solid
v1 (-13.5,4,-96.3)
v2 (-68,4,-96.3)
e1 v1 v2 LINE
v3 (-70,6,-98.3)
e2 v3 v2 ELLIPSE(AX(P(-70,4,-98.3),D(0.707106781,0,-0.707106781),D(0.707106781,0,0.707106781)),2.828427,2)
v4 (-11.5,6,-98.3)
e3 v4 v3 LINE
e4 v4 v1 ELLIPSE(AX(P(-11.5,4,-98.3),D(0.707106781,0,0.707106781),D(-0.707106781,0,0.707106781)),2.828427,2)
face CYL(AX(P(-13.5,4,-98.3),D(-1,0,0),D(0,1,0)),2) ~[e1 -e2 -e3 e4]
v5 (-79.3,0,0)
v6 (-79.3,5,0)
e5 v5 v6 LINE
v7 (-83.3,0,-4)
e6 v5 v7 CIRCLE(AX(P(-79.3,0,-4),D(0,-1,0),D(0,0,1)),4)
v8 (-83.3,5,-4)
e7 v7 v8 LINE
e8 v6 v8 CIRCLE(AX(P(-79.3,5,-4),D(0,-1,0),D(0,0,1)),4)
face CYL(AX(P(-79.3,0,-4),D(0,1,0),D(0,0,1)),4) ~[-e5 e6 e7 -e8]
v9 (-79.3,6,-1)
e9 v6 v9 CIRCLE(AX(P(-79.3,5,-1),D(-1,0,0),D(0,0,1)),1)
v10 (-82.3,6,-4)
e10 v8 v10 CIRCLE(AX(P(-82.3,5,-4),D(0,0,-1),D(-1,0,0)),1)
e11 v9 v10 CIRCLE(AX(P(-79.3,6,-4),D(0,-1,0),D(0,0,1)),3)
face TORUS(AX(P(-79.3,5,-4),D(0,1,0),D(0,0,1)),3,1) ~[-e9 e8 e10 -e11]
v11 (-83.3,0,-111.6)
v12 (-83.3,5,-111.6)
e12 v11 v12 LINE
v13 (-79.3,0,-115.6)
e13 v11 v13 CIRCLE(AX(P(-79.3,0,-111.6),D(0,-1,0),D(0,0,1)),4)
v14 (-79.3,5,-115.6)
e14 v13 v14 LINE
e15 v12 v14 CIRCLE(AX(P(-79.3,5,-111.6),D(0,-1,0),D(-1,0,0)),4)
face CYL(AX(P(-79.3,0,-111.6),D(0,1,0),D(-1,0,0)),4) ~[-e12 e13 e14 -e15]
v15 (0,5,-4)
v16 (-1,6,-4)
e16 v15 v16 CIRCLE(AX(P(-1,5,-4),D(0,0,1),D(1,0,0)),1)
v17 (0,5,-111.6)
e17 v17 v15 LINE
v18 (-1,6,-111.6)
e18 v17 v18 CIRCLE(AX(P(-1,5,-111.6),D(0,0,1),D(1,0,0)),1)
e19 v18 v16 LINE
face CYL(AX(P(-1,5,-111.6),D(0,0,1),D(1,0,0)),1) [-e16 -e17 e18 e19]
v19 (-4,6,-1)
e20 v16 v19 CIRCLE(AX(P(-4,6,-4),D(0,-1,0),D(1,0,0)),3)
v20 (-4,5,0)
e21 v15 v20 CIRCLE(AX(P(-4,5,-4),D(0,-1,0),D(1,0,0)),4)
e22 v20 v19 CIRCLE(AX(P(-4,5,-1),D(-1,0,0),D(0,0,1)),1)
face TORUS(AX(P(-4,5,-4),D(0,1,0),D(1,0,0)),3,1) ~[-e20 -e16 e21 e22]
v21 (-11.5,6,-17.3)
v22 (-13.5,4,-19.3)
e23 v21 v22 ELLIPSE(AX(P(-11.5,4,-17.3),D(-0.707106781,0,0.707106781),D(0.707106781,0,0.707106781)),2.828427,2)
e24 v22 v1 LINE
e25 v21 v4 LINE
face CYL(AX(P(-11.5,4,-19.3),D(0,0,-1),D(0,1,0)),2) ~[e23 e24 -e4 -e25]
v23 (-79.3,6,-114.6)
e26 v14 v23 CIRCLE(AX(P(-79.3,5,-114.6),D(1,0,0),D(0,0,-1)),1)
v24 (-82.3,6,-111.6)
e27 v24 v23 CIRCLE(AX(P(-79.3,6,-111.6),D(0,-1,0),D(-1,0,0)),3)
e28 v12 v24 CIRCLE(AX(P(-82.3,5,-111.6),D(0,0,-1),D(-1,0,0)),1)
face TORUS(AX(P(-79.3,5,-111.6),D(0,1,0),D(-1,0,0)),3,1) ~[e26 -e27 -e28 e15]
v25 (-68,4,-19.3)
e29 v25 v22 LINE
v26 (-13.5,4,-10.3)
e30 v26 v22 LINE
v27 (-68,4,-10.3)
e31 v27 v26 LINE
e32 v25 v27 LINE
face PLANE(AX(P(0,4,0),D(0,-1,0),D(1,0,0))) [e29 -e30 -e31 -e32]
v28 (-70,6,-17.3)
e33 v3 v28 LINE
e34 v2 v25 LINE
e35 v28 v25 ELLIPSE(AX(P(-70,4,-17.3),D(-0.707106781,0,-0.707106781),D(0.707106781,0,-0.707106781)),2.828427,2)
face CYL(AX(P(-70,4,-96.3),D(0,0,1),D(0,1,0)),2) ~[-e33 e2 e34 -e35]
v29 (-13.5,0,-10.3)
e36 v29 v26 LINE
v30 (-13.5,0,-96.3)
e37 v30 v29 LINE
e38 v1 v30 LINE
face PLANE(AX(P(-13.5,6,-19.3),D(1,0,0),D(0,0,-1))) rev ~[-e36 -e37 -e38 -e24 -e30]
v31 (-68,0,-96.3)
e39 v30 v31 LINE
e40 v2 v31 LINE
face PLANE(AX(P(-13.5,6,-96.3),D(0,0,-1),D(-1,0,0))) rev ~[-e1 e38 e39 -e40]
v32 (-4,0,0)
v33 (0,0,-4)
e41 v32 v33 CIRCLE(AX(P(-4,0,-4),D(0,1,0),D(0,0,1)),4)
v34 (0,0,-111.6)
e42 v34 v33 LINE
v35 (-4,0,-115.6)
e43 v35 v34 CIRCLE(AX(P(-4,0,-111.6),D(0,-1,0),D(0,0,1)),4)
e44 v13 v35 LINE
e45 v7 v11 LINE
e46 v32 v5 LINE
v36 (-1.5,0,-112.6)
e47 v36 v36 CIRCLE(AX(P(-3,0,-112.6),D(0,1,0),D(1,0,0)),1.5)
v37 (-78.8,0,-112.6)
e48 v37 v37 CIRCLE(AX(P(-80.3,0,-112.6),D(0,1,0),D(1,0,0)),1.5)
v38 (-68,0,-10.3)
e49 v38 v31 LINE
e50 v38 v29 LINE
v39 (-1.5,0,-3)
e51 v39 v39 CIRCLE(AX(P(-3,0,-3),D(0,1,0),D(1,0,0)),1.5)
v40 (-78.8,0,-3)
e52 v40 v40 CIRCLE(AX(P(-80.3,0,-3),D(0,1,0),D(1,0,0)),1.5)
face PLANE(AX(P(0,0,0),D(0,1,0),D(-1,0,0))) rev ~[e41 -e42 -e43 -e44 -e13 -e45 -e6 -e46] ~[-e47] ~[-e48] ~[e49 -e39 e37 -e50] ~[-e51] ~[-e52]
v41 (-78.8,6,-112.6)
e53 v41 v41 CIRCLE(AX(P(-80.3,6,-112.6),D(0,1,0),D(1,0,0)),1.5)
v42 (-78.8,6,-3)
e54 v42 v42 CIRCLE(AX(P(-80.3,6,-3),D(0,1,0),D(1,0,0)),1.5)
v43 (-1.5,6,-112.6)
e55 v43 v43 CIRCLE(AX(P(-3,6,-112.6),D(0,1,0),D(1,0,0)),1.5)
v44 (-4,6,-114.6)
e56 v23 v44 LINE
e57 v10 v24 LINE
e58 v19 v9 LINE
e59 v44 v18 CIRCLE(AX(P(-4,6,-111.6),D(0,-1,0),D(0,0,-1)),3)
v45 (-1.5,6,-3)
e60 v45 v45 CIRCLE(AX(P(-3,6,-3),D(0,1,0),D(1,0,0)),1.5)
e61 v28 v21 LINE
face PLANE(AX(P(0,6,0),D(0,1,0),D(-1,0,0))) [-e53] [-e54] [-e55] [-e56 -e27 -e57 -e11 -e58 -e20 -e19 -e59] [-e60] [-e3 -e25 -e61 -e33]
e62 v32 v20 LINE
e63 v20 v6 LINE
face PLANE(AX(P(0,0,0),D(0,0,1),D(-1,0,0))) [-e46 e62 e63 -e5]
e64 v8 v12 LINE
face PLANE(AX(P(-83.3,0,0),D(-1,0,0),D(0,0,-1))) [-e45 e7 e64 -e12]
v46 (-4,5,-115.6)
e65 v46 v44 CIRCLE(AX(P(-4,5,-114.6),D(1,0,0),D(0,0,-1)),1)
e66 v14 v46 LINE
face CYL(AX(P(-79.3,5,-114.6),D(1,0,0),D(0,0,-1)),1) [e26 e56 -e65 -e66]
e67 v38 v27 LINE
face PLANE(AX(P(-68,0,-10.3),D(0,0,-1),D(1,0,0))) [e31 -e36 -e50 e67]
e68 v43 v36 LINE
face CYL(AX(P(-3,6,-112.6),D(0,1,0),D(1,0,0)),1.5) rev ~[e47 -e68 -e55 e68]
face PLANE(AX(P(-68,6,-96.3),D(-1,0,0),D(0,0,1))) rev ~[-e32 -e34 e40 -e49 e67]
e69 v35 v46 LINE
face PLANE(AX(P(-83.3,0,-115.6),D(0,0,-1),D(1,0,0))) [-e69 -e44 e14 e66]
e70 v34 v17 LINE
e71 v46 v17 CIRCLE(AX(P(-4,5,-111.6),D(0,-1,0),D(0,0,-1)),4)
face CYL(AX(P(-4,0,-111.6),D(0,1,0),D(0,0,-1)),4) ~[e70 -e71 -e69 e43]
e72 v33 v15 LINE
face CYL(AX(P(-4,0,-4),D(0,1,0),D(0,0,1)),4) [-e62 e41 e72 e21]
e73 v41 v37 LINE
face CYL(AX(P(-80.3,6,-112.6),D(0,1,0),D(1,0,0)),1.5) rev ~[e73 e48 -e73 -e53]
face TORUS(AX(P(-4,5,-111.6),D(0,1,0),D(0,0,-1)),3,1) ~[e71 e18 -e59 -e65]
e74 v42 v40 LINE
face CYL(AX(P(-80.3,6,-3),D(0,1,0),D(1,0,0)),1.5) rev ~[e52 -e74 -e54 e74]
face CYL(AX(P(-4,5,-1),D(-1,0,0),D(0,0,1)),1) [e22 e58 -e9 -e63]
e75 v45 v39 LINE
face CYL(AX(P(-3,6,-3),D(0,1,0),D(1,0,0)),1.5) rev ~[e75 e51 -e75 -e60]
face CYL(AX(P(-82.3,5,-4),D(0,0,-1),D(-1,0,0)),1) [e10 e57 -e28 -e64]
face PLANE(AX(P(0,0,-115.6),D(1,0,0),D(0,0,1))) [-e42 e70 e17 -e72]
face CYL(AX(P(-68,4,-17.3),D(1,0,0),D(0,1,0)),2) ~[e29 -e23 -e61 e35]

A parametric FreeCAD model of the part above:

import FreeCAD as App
import Part
import Sketcher

V = App.Vector
Q = App.Units.Quantity


def edges_at(feature, points):
    """Names of the edges that pass closest to the given points."""
    edges = feature.Shape.Edges
    near = lambda p: min(range(len(edges)), key=lambda i: edges[i].distToShape(Part.Vertex(*p))[0])
    return sorted({f"Edge{near(p) + 1}" for p in points})

doc = App.newDocument("Part")
params = doc.addObject("Spreadsheet::Sheet", "Params")
for row, (alias, value) in enumerate([
    ("sketch1_width", "83.3 mm"),
    ("sketch1_height", "115.6 mm"),
    ("pad1_length", "6 mm"),
    ("fillet_radius", "4 mm"),
    ("sketch2_diameter", "3 mm"),
    ("sketch3_height", "77 mm"),
    ("sketch3_width", "54.5 mm"),
    ("fillet2_radius", "1 mm"),
    ("fillet3_radius", "2 mm"),
    ("sketch4_height", "9 mm"),
    ("sketch4_width", "54.5 mm"),
    ("pocket3_length", "4 mm"),
], start=1):
    params.set(f"A{row}", alias)
    params.set(f"B{row}", "=" + value)
    params.setAlias(f"B{row}", alias)

body = doc.addObject("PartDesign::Body", "Body")

# Sketch on XZ plane
sketch1 = body.newObject("Sketcher::SketchObject", "Sketch")
sketch1.AttachmentSupport = (doc.getObject("XZ_Plane"), [""])
sketch1.MapMode = "FlatFace"
sketch1.addGeometry([
    Part.LineSegment(V(-83, 0, 0), V(0, 0, 0)),
    Part.LineSegment(V(0, 0, 0), V(0, -116, 0)),
    Part.LineSegment(V(0, -116, 0), V(-83, -116, 0)),
    Part.LineSegment(V(-83, -116, 0), V(-83, 0, 0)),
], False)
sketch1.addConstraint([
    Sketcher.Constraint("Coincident", 0, 2, 1, 1),
    Sketcher.Constraint("Coincident", 1, 2, 2, 1),
    Sketcher.Constraint("Coincident", 2, 2, 3, 1),
    Sketcher.Constraint("Coincident", 3, 2, 0, 1),
    Sketcher.Constraint("Horizontal", 0),
    Sketcher.Constraint("Vertical", 1),
    Sketcher.Constraint("Horizontal", 2),
    Sketcher.Constraint("Vertical", 3),
    Sketcher.Constraint("Coincident", 0, 2, -1, 1),
    Sketcher.Constraint("DistanceX", 0, 1, 0, 2, Q("83.3 mm")),
    Sketcher.Constraint("DistanceY", 1, 2, 1, 1, Q("115.6 mm")),
])
sketch1.setExpression("Constraints[9]", "Params.sketch1_width")
sketch1.setExpression("Constraints[10]", "Params.sketch1_height")
pad1 = body.newObject("PartDesign::Pad", "Pad")
pad1.Profile = sketch1
pad1.setExpression("Length", "Params.pad1_length")
pad1.Reversed = True
doc.recompute()

fillet = body.newObject("PartDesign::Fillet", "Fillet")
fillet.Base = (pad1, edges_at(pad1, [
    (0, 3, -115.6),
    (-83.3, 3, -115.6),
    (-83.3, 3, 0),
    (0, 3, 0),
]))
fillet.setExpression("Radius", "Params.fillet_radius")

# Sketch on XZ plane
sketch2 = body.newObject("Sketcher::SketchObject", "Sketch001")
sketch2.AttachmentSupport = (doc.getObject("XZ_Plane"), [""])
sketch2.MapMode = "FlatFace"
sketch2.AttachmentOffset = App.Placement(V(0, 0, -6), App.Rotation())
sketch2.addGeometry([
    Part.Circle(V(-80.3, -3, 0), V(0, 0, 1), 1.5),
    Part.Circle(V(-80.3, -112.6, 0), V(0, 0, 1), 1.5),
    Part.Circle(V(-3, -3, 0), V(0, 0, 1), 1.5),
    Part.Circle(V(-3, -112.6, 0), V(0, 0, 1), 1.5),
], False)
sketch2.addConstraint([
    Sketcher.Constraint("Equal", 0, 1),
    Sketcher.Constraint("Equal", 1, 2),
    Sketcher.Constraint("Equal", 2, 3),
    Sketcher.Constraint("Horizontal", 0, 3, 2, 3),
    Sketcher.Constraint("Horizontal", 1, 3, 3, 3),
    Sketcher.Constraint("Vertical", 0, 3, 1, 3),
    Sketcher.Constraint("Vertical", 2, 3, 3, 3),
    Sketcher.Constraint("Diameter", 0, Q("3 mm")),
    Sketcher.Constraint("DistanceY", 0, 3, -1, 1, Q("3 mm")),
    Sketcher.Constraint("DistanceX", 2, 3, -1, 1, Q("3 mm")),
    Sketcher.Constraint("DistanceX", 0, 3, -1, 1, Q("80.3 mm")),
    Sketcher.Constraint("DistanceY", 1, 3, -1, 1, Q("112.6 mm")),
])
sketch2.setExpression("Constraints[7]", "Params.sketch2_diameter")
pocket1 = body.newObject("PartDesign::Pocket", "Pocket")
pocket1.Profile = sketch2
pocket1.Type = "ThroughAll"
pocket1.Reversed = True

# Sketch on XZ plane
sketch3 = body.newObject("Sketcher::SketchObject", "Sketch002")
sketch3.AttachmentSupport = (doc.getObject("XZ_Plane"), [""])
sketch3.MapMode = "FlatFace"
sketch3.AttachmentOffset = App.Placement(V(0, 0, -6), App.Rotation())
sketch3.addGeometry([
    Part.LineSegment(V(-68, -96, 0), V(-68, -19, 0)),
    Part.LineSegment(V(-68, -19, 0), V(-14, -19, 0)),
    Part.LineSegment(V(-14, -19, 0), V(-14, -96, 0)),
    Part.LineSegment(V(-14, -96, 0), V(-68, -96, 0)),
], False)
sketch3.addConstraint([
    Sketcher.Constraint("Coincident", 0, 2, 1, 1),
    Sketcher.Constraint("Coincident", 1, 2, 2, 1),
    Sketcher.Constraint("Coincident", 2, 2, 3, 1),
    Sketcher.Constraint("Coincident", 3, 2, 0, 1),
    Sketcher.Constraint("Vertical", 0),
    Sketcher.Constraint("Horizontal", 1),
    Sketcher.Constraint("Vertical", 2),
    Sketcher.Constraint("Horizontal", 3),
    Sketcher.Constraint("DistanceY", 0, 1, 0, 2, Q("77 mm")),
    Sketcher.Constraint("DistanceX", 1, 1, 1, 2, Q("54.5 mm")),
    Sketcher.Constraint("DistanceX", 0, 2, -1, 1, Q("68 mm")),
    Sketcher.Constraint("DistanceY", 0, 2, -1, 1, Q("19.3 mm")),
])
sketch3.setExpression("Constraints[8]", "Params.sketch3_height")
sketch3.setExpression("Constraints[9]", "Params.sketch3_width")
pocket2 = body.newObject("PartDesign::Pocket", "Pocket001")
pocket2.Profile = sketch3
pocket2.Type = "ThroughAll"
pocket2.Reversed = True
doc.recompute()

fillet2 = body.newObject("PartDesign::Fillet", "Fillet001")
fillet2.Base = (pocket2, edges_at(pocket2, [
    (-82.128, 6, -1.172),
    (-41.65, 6, 0),
    (-1.172, 6, -1.172),
    (0, 6, -57.8),
    (-1.172, 6, -114.428),
    (-41.65, 6, -115.6),
    (-82.128, 6, -114.428),
    (-83.3, 6, -57.8),
]))
fillet2.setExpression("Radius", "Params.fillet2_radius")
doc.recompute()

fillet3 = body.newObject("PartDesign::Fillet", "Fillet002")
fillet3.Base = (fillet2, edges_at(fillet2, [
    (-40.75, 6, -19.3),
    (-68, 6, -57.8),
    (-40.75, 6, -96.3),
    (-13.5, 6, -57.8),
]))
fillet3.setExpression("Radius", "Params.fillet3_radius")

# Sketch on XZ plane
sketch4 = body.newObject("Sketcher::SketchObject", "Sketch003")
sketch4.AttachmentSupport = (doc.getObject("XZ_Plane"), [""])
sketch4.MapMode = "FlatFace"
sketch4.addGeometry([
    Part.LineSegment(V(-68, -10, 0), V(-68, -19, 0)),
    Part.LineSegment(V(-68, -19, 0), V(-14, -19, 0)),
    Part.LineSegment(V(-14, -19, 0), V(-14, -10, 0)),
    Part.LineSegment(V(-14, -10, 0), V(-68, -10, 0)),
], False)
sketch4.addConstraint([
    Sketcher.Constraint("Coincident", 0, 2, 1, 1),
    Sketcher.Constraint("Coincident", 1, 2, 2, 1),
    Sketcher.Constraint("Coincident", 2, 2, 3, 1),
    Sketcher.Constraint("Coincident", 3, 2, 0, 1),
    Sketcher.Constraint("Vertical", 0),
    Sketcher.Constraint("Horizontal", 1),
    Sketcher.Constraint("Vertical", 2),
    Sketcher.Constraint("Horizontal", 3),
    Sketcher.Constraint("DistanceY", 0, 2, 0, 1, Q("9 mm")),
    Sketcher.Constraint("DistanceX", 1, 1, 1, 2, Q("54.5 mm")),
    Sketcher.Constraint("DistanceX", 0, 2, -1, 1, Q("68 mm")),
    Sketcher.Constraint("DistanceY", 0, 2, -1, 1, Q("19.3 mm")),
])
sketch4.setExpression("Constraints[8]", "Params.sketch4_height")
sketch4.setExpression("Constraints[9]", "Params.sketch4_width")
pocket3 = body.newObject("PartDesign::Pocket", "Pocket002")
pocket3.Profile = sketch4
pocket3.setExpression("Length", "Params.pocket3_length")

doc.recompute()
